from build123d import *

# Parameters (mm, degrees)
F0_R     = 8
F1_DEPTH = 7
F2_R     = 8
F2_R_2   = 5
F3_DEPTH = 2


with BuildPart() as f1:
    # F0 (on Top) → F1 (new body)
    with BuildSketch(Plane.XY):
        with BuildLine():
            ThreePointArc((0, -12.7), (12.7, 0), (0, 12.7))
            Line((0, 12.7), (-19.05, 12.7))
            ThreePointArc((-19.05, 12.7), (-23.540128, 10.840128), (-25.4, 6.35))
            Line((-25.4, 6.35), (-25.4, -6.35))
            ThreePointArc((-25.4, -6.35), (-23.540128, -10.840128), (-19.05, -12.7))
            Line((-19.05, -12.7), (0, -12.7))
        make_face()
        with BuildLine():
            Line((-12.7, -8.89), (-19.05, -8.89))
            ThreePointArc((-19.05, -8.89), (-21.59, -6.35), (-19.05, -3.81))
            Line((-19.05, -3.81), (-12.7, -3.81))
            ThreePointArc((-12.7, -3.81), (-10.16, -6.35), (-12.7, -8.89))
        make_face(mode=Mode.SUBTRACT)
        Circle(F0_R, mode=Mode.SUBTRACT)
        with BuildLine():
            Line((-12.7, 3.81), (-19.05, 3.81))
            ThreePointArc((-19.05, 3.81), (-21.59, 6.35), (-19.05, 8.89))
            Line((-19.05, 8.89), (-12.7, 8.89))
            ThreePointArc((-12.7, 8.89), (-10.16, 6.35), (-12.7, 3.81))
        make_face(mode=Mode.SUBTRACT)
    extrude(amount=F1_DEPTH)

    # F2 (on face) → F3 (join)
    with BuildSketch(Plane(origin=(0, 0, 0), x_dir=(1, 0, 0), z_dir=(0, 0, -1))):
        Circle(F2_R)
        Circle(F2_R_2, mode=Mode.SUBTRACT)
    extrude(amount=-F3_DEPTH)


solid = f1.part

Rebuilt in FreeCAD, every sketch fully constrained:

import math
import FreeCAD as App
import Part
import Sketcher
from FreeCAD import Vector
Q = App.Units.Quantity

doc = App.newDocument("Part")
body = doc.addObject("PartDesign::Body", "Body")

# Sketch on XY plane
sketch1 = body.newObject("Sketcher::SketchObject", "Sketch")
sketch1.AttachmentSupport = (doc.getObject("XY_Plane"), [""])
sketch1.MapMode = "FlatFace"
sketch1.addGeometry([
    Part.ArcOfCircle(Part.Circle(Vector(0, 0, 0), Vector(0, 0, 1), 12.7), math.radians(-90), math.radians(90)),  # 0
    Part.LineSegment(Vector(0, 12.7, 0), Vector(-19.1, 12.7, 0)),  # 1
    Part.ArcOfCircle(Part.Circle(Vector(-19, 6.3, 0), Vector(0, 0, 1), 6.4), math.radians(90), math.radians(180)),  # 2
    Part.LineSegment(Vector(-25.4, 6.3, 0), Vector(-25.4, -6.3, 0)),  # 3
    Part.ArcOfCircle(Part.Circle(Vector(-19, -6.3, 0), Vector(0, 0, 1), 6.4), math.radians(-180), math.radians(-90)),  # 4
    Part.LineSegment(Vector(-19.1, -12.7, 0), Vector(0, -12.7, 0)),  # 5
    Part.ArcOfCircle(Part.Circle(Vector(-12.7, -6.3, 0), Vector(0, 0, 1), 2.5), math.radians(-90), math.radians(90)),  # 6
    Part.LineSegment(Vector(-12.7, -8.9, 0), Vector(-19.1, -8.9, 0)),  # 7
    Part.ArcOfCircle(Part.Circle(Vector(-19.1, -6.3, 0), Vector(0, 0, 1), 2.5), math.radians(90), math.radians(270)),  # 8
    Part.LineSegment(Vector(-19.1, -3.8, 0), Vector(-12.7, -3.8, 0)),  # 9
    Part.Circle(Vector(0, 0, 0), Vector(0, 0, 1), 8),  # 10
    Part.ArcOfCircle(Part.Circle(Vector(-12.7, 6.3, 0), Vector(0, 0, 1), 2.5), math.radians(-90), math.radians(90)),  # 11
    Part.LineSegment(Vector(-12.7, 3.8, 0), Vector(-19.1, 3.8, 0)),  # 12
    Part.ArcOfCircle(Part.Circle(Vector(-19.1, 6.3, 0), Vector(0, 0, 1), 2.5), math.radians(90), math.radians(270)),  # 13
    Part.LineSegment(Vector(-19.1, 8.9, 0), Vector(-12.7, 8.9, 0)),  # 14
], False)
sketch1.addConstraint([
    Sketcher.Constraint("Tangent", 0, 2, 1, 1),
    Sketcher.Constraint("Tangent", 1, 2, 2, 1),
    Sketcher.Constraint("Tangent", 2, 2, 3, 1),
    Sketcher.Constraint("Tangent", 3, 2, 4, 1),
    Sketcher.Constraint("Tangent", 4, 2, 5, 1),
    Sketcher.Constraint("Tangent", 5, 2, 0, 1),
    Sketcher.Constraint("Tangent", 6, 1, 7, 1),
    Sketcher.Constraint("Tangent", 7, 2, 8, 2),
    Sketcher.Constraint("Tangent", 8, 1, 9, 1),
    Sketcher.Constraint("Tangent", 9, 2, 6, 2),
    Sketcher.Constraint("Tangent", 11, 1, 12, 1),
    Sketcher.Constraint("Tangent", 12, 2, 13, 2),
    Sketcher.Constraint("Tangent", 13, 1, 14, 1),
    Sketcher.Constraint("Tangent", 14, 2, 11, 2),
    Sketcher.Constraint("Horizontal", 1),
    Sketcher.Constraint("Vertical", 3),
    Sketcher.Constraint("Horizontal", 5),
    Sketcher.Constraint("Horizontal", 7),
    Sketcher.Constraint("Horizontal", 9),
    Sketcher.Constraint("Horizontal", 12),
    Sketcher.Constraint("Horizontal", 14),
    Sketcher.Constraint("Coincident", 0, 3, -1, 1),
    Sketcher.Constraint("Coincident", 10, 3, -1, 1),
    Sketcher.Constraint("Coincident", 8, 3, 4, 3),
    Sketcher.Constraint("Coincident", 13, 3, 2, 3),
    Sketcher.Constraint("Equal", 2, 4),
    Sketcher.Constraint("Equal", 8, 11),
    Sketcher.Constraint("Vertical", 6, 3, 11, 3),
    Sketcher.Constraint("Radius", 0, Q("0.5 in")),
    Sketcher.Constraint("Radius", 6, Q("0.1 in")),
    Sketcher.Constraint("Radius", 2, Q("0.25 in")),
    Sketcher.Constraint("DistanceX", 2, 2, -1, 1, Q("1 in")),
    Sketcher.Constraint("DistanceX", 7, 2, 7, 1, Q("0.25 in")),
    Sketcher.Constraint("Diameter", 10, Q("16 mm")),
])
pad1 = body.newObject("PartDesign::Pad", "Pad")
pad1.Profile = sketch1
pad1.Length = 7

# Sketch on XY plane
sketch2 = body.newObject("Sketcher::SketchObject", "Sketch001")
sketch2.AttachmentSupport = (doc.getObject("XY_Plane"), [""])
sketch2.MapMode = "FlatFace"
sketch2.addGeometry([
    Part.Circle(Vector(0, 0, 0), Vector(0, 0, 1), 8),
    Part.Circle(Vector(0, 0, 0), Vector(0, 0, 1), 5),
], False)
sketch2.addConstraint([
    Sketcher.Constraint("Coincident", 0, 3, -1, 1),
    Sketcher.Constraint("Coincident", 1, 3, -1, 1),
    Sketcher.Constraint("Diameter", 0, Q("16 mm")),
    Sketcher.Constraint("Diameter", 1, Q("10 mm")),
])
pad2 = body.newObject("PartDesign::Pad", "Pad001")
pad2.Profile = sketch2
pad2.Length = 2

doc.recompute()
